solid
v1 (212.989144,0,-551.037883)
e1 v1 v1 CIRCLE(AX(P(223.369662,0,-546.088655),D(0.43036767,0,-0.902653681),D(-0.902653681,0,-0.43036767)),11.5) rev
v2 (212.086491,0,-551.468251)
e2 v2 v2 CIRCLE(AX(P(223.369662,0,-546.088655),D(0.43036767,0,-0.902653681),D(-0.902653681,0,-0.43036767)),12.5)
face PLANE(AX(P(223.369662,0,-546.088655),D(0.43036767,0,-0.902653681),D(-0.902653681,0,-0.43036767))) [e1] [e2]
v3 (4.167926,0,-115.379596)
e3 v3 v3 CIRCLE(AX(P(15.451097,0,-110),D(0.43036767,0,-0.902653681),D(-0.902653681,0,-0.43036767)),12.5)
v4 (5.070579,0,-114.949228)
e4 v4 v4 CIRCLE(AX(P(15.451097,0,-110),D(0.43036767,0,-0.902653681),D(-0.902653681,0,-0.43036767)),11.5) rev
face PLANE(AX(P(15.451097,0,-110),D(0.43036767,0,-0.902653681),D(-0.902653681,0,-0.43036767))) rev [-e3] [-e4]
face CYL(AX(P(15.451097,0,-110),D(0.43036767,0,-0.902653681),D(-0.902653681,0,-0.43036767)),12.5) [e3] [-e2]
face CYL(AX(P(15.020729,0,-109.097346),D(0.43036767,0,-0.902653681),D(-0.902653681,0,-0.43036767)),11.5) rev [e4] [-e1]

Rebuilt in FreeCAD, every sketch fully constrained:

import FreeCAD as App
import Part
import Sketcher
from FreeCAD import Vector

doc = App.newDocument("Part")
body = doc.addObject("PartDesign::Body", "Body")

# Sketch on an angled plane
sketch1 = body.newObject("Sketcher::SketchObject", "Sketch")
sketch1.Placement = App.Placement(Vector(15.451097, 0, -110), App.Rotation(Vector(-0.902653681, 0, -0.43036767), Vector(0, 0.999999999, 0), Vector(0.43036767, 0, -0.902653681), "ZXY"))
sketch1.addGeometry(Part.Circle(Vector(0, 0, 0), Vector(0, 0, 1), 12), False)
sketch1.addConstraint([
    Sketcher.Constraint("Coincident", 0, 3, -1, 1),
    Sketcher.Constraint("Diameter", 0, 25.0),
])

# Sketch on an angled plane
sketch2 = body.newObject("Sketcher::SketchObject", "Sketch001")
sketch2.Placement = App.Placement(Vector(-30.142725, 0, -14.371463), App.Rotation(Vector(0.43036767, 0, -0.902653681), Vector(0, 0.999999999, 0), Vector(0.902653681, 0, 0.43036767), "ZXY"))
sketch2.addGeometry(Part.LineSegment(Vector(106, 0, 0), Vector(589, 0, 0)), False)
sketch2.addConstraint([
    Sketcher.Constraint("Horizontal", 0),
    Sketcher.Constraint("PointOnObject", 0, 1, -1),
    Sketcher.Constraint("DistanceX", 0, 1, 0, 2, 483.118458),
    Sketcher.Constraint("DistanceX", -1, 1, 0, 1, 105.941557),
])
doc.recompute()

additivepipe = body.newObject("PartDesign::AdditivePipe", "AdditivePipe")
additivepipe.Profile = sketch1
additivepipe.Spine = (sketch2, ["Edge1"])

# Sketch on an angled plane
sketch3 = body.newObject("Sketcher::SketchObject", "Sketch002")
sketch3.Placement = App.Placement(Vector(15.451097, 0, -110), App.Rotation(Vector(-0.902653681, 0, -0.43036767), Vector(0, 0.999999999, 0), Vector(0.43036767, 0, -0.902653681), "ZXY"))
sketch3.addGeometry(Part.Circle(Vector(0, 0, 0), Vector(0, 0, 1), 12), False)
sketch3.addConstraint([
    Sketcher.Constraint("Coincident", 0, 3, -1, 1),
    Sketcher.Constraint("Diameter", 0, 23.0),
])

# Sketch on an angled plane
sketch4 = body.newObject("Sketcher::SketchObject", "Sketch003")
sketch4.Placement = App.Placement(Vector(-30.142725, 0, -14.371463), App.Rotation(Vector(0.43036767, 0, -0.902653681), Vector(0, 0.999999999, 0), Vector(0.902653681, 0, 0.43036767), "ZXY"))
sketch4.addGeometry(Part.LineSegment(Vector(106, 0, 0), Vector(589, 0, 0)), False)
sketch4.addConstraint([
    Sketcher.Constraint("Horizontal", 0),
    Sketcher.Constraint("PointOnObject", 0, 1, -1),
    Sketcher.Constraint("DistanceX", 0, 1, 0, 2, 483.118458),
    Sketcher.Constraint("DistanceX", -1, 1, 0, 1, 105.941557),
])
doc.recompute()

subtractivepipe = body.newObject("PartDesign::SubtractivePipe", "SubtractivePipe")
subtractivepipe.Profile = sketch3
subtractivepipe.Spine = (sketch4, ["Edge1"])

doc.recompute()
